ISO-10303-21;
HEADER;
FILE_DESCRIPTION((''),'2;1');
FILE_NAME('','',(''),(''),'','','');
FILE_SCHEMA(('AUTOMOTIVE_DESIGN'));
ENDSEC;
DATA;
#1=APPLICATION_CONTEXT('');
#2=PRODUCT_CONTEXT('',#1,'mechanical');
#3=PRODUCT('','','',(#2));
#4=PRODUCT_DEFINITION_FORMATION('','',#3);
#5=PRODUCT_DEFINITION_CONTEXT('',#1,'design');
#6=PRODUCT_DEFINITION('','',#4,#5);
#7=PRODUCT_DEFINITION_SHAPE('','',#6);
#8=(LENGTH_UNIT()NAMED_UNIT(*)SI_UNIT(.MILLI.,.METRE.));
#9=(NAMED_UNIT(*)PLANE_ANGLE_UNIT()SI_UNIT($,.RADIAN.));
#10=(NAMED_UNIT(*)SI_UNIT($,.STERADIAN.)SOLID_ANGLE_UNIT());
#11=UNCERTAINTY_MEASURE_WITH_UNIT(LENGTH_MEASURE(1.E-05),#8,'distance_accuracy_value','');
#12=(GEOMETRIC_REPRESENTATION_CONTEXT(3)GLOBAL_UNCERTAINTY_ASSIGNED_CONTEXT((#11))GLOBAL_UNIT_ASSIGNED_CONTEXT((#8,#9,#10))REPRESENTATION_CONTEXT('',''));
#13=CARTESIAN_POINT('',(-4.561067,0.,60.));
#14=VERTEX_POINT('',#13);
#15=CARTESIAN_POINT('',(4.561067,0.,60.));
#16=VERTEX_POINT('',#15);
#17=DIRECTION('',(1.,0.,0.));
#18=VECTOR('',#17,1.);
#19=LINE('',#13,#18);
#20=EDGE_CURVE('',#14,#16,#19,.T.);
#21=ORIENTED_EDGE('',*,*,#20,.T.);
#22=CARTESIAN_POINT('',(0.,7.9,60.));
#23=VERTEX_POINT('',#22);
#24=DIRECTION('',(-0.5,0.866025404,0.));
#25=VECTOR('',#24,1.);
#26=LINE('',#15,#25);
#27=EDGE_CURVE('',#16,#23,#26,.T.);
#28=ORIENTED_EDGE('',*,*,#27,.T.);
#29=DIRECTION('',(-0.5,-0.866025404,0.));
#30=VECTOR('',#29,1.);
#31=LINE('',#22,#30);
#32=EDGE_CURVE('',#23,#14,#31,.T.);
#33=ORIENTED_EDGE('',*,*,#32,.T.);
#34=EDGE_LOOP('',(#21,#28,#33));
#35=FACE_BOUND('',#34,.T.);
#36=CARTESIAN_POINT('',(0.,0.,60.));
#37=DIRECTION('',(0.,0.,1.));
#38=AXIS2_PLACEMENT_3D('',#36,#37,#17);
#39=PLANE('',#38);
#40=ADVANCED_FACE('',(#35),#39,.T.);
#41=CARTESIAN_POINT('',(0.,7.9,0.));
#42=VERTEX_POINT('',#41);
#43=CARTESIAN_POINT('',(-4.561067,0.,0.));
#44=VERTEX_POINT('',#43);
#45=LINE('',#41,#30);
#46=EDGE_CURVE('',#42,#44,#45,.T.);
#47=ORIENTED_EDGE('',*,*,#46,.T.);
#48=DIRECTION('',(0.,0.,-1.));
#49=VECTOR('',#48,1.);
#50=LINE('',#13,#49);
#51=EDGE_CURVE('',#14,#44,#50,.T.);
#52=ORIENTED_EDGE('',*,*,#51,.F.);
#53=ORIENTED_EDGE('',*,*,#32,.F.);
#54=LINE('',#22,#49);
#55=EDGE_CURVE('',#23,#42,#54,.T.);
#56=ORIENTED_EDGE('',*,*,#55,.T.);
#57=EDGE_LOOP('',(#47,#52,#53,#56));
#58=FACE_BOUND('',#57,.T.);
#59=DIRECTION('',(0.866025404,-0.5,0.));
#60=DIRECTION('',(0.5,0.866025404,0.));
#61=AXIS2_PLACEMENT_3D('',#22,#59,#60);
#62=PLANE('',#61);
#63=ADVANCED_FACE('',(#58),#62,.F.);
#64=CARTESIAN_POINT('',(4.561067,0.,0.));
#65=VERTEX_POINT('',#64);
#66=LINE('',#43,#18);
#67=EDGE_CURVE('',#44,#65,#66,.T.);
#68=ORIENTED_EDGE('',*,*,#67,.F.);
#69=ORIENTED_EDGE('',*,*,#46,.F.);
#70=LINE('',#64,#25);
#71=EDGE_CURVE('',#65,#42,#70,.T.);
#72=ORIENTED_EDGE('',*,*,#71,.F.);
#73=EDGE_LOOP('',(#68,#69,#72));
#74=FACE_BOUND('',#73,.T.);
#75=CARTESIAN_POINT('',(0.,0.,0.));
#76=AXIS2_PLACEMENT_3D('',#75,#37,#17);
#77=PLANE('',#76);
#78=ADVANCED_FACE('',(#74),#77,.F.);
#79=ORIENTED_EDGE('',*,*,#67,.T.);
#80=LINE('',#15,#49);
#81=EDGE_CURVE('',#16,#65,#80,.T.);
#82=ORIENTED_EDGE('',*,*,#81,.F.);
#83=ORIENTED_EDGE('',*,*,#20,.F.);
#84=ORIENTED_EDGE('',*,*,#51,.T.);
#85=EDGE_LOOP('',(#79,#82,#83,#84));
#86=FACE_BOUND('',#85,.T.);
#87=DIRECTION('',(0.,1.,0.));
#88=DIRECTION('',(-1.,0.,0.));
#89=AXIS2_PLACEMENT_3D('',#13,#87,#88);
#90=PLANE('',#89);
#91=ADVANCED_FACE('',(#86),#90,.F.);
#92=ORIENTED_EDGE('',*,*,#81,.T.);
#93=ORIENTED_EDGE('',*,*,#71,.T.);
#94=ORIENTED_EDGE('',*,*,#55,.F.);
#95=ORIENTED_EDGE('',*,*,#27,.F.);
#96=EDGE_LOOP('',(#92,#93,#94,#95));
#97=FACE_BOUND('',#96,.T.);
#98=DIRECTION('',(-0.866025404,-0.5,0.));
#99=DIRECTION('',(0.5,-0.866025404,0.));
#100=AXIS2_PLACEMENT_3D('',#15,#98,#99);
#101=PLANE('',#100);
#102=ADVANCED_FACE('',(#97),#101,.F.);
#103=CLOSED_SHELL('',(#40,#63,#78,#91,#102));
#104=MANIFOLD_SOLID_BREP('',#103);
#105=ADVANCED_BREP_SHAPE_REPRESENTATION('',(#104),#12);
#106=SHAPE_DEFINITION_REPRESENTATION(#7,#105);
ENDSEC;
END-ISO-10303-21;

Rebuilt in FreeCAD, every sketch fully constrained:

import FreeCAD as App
import Part
import Sketcher

V = App.Vector
Q = App.Units.Quantity


def add_polygon(sketch, points):
    """Adds a closed chain of lines whose ends are joined by coincident constraints."""
    first, n = sketch.GeometryCount, len(points)
    for a, b in zip(points, points[1:] + points[:1]):
        sketch.addGeometry(Part.LineSegment(App.Vector(*a, 0), App.Vector(*b, 0)), False)
    for i in range(n):
        sketch.addConstraint(Sketcher.Constraint("Coincident", first + i, 2, first + (i + 1) % n, 1))

doc = App.newDocument("Part")
body = doc.addObject("PartDesign::Body", "Body")

sketch1 = doc.addObject("Sketcher::SketchObject", "Sketch")
body.addObject(sketch1)
sketch1.AttachmentSupport = (doc.XY_Plane, [""])
sketch1.MapMode = "FlatFace"
add_polygon(sketch1, [(4.561067, 0), (0, 7.9), (-4.561067, 0)])
sketch1.addConstraint([
    Sketcher.Constraint("Horizontal", 2),
    Sketcher.Constraint("Symmetric", 1, 2, 2, 2, -1, 1),
    Sketcher.Constraint("PointOnObject", 0, 2, -2),
    Sketcher.Constraint("Angle", 0, Q("120 deg")),
    Sketcher.Constraint("DistanceY", -1, 1, 0, 2, Q("7.9 mm")),
])
pad1 = doc.addObject("PartDesign::Pad", "Pad")
body.addObject(pad1)
pad1.Profile = sketch1
pad1.Length = 60

doc.recompute()
